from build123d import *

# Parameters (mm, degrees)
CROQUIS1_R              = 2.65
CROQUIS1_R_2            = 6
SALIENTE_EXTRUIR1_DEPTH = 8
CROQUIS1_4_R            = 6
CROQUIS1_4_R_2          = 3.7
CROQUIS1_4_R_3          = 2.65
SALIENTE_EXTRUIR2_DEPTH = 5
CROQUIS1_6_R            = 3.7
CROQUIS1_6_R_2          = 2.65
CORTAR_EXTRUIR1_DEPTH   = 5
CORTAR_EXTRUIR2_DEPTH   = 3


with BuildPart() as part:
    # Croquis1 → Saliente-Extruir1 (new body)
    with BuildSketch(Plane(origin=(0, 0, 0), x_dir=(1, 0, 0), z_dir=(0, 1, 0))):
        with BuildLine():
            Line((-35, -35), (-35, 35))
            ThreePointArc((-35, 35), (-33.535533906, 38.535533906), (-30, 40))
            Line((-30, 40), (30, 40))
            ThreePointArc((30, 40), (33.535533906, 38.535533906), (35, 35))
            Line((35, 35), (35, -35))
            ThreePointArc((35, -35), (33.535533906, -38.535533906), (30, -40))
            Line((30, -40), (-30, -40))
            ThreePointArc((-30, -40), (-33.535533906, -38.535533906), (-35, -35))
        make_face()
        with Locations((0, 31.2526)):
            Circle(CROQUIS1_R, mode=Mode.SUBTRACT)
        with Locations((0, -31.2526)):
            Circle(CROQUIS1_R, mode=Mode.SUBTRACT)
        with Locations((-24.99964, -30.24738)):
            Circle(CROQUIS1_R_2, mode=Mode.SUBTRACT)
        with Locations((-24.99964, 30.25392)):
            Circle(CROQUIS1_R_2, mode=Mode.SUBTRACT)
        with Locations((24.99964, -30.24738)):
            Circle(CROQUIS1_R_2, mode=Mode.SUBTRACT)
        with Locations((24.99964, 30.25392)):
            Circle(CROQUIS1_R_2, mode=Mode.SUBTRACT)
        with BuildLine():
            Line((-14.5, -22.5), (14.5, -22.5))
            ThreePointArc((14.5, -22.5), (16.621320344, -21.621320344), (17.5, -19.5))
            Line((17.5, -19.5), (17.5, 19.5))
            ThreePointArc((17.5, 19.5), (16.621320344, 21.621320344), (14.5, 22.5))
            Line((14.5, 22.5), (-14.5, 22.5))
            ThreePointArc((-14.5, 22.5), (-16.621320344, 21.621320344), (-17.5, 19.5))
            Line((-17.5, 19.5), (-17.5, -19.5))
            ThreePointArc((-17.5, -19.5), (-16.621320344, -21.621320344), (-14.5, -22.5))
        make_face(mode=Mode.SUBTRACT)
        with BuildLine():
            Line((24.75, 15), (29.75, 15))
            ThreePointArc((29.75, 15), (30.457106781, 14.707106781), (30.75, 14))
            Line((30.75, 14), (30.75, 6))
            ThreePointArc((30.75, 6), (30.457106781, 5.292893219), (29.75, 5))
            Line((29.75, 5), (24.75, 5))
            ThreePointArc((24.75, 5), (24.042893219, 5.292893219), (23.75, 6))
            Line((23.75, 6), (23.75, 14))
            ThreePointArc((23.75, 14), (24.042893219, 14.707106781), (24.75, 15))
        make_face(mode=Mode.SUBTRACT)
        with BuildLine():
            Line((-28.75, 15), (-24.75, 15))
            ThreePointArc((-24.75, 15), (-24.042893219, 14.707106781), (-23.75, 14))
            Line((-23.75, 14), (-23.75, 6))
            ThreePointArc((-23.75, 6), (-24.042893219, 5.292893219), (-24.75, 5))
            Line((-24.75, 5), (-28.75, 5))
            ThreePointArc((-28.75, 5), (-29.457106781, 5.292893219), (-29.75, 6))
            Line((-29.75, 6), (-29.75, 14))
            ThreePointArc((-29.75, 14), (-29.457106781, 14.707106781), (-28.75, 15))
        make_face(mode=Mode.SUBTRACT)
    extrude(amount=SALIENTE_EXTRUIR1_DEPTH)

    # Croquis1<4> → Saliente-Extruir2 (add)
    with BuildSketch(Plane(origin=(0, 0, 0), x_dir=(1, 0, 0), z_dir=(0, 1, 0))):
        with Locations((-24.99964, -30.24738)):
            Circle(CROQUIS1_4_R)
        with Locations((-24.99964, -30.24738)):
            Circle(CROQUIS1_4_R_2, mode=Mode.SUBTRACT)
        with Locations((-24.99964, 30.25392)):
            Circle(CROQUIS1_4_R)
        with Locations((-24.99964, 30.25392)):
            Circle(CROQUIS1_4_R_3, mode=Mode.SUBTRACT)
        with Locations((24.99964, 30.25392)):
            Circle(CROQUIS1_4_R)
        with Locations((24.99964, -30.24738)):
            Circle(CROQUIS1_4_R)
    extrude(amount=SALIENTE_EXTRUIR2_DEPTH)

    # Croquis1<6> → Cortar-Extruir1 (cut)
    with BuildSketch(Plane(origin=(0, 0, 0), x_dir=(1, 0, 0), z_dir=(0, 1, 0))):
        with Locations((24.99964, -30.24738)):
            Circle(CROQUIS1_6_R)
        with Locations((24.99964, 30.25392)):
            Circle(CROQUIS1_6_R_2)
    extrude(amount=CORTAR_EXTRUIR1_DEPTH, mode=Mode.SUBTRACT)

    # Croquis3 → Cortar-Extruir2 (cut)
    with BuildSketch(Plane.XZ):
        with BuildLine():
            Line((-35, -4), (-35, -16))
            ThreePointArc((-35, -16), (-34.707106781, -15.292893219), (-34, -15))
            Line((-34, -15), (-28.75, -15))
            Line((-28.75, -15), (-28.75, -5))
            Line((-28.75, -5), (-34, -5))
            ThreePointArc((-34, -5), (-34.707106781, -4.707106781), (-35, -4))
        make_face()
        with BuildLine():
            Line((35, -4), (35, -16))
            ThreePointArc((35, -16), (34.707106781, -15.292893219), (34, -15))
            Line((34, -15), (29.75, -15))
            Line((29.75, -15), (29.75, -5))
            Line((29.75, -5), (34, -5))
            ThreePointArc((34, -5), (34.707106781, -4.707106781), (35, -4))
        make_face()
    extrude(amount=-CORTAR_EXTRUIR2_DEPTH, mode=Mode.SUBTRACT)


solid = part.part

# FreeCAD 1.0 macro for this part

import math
import FreeCAD as App
import Part
import Sketcher

V = App.Vector
Q = App.Units.Quantity

doc = App.newDocument("Part")
body = doc.addObject("PartDesign::Body", "Body")

# Sketch on XZ plane
sketch1 = body.newObject("Sketcher::SketchObject", "Sketch")
sketch1.AttachmentSupport = (doc.getObject("XZ_Plane"), [""])
sketch1.MapMode = "FlatFace"
sketch1.addGeometry(Part.LineSegment(V(-35, -35, 0), V(-35, 35, 0)), False)
sketch1.addGeometry(Part.ArcOfCircle(Part.Circle(V(-30, 35, 0), V(0, 0, 1), 5), math.radians(90), math.radians(180)), False)
sketch1.addGeometry(Part.LineSegment(V(-30, 40, 0), V(30, 40, 0)), False)
sketch1.addGeometry(Part.ArcOfCircle(Part.Circle(V(30, 35, 0), V(0, 0, 1), 5), math.radians(0), math.radians(90)), False)
sketch1.addGeometry(Part.LineSegment(V(35, 35, 0), V(35, -35, 0)), False)
sketch1.addGeometry(Part.ArcOfCircle(Part.Circle(V(30, -35, 0), V(0, 0, 1), 5), math.radians(-90), math.radians(0)), False)
sketch1.addGeometry(Part.LineSegment(V(30, -40, 0), V(-30, -40, 0)), False)
sketch1.addGeometry(Part.ArcOfCircle(Part.Circle(V(-30, -35, 0), V(0, 0, 1), 5), math.radians(180), math.radians(270)), False)
sketch1.addGeometry(Part.Circle(V(25, 30.2, 0), V(0, 0, 1), 6), False)
sketch1.addGeometry(Part.Circle(V(0, 31.3, 0), V(0, 0, 1), 2.6), False)
sketch1.addGeometry(Part.Circle(V(-25, 30.2, 0), V(0, 0, 1), 6), False)
sketch1.addGeometry(Part.ArcOfCircle(Part.Circle(V(-14.5, 19.5, 0), V(0, 0, 1), 3), math.radians(90), math.radians(180)), False)
sketch1.addGeometry(Part.LineSegment(V(-17.5, 19.5, 0), V(-17.5, -19.5, 0)), False)
sketch1.addGeometry(Part.ArcOfCircle(Part.Circle(V(-14.5, -19.5, 0), V(0, 0, 1), 3), math.radians(180), math.radians(270)), False)
sketch1.addGeometry(Part.LineSegment(V(-14.5, -22.5, 0), V(14.5, -22.5, 0)), False)
sketch1.addGeometry(Part.ArcOfCircle(Part.Circle(V(14.5, -19.5, 0), V(0, 0, 1), 3), math.radians(-90), math.radians(0)), False)
sketch1.addGeometry(Part.LineSegment(V(17.5, -19.5, 0), V(17.5, 19.5, 0)), False)
sketch1.addGeometry(Part.ArcOfCircle(Part.Circle(V(14.5, 19.5, 0), V(0, 0, 1), 3), math.radians(0), math.radians(90)), False)
sketch1.addGeometry(Part.LineSegment(V(14.5, 22.5, 0), V(-14.5, 22.5, 0)), False)
sketch1.addGeometry(Part.LineSegment(V(24.8, -15, 0), V(29.8, -15, 0)), False)
sketch1.addGeometry(Part.ArcOfCircle(Part.Circle(V(29.7, -14, 0), V(0, 0, 1), 1), math.radians(-90), math.radians(0)), False)
sketch1.addGeometry(Part.LineSegment(V(30.8, -14, 0), V(30.8, -6, 0)), False)
sketch1.addGeometry(Part.ArcOfCircle(Part.Circle(V(29.7, -6, 0), V(0, 0, 1), 1), math.radians(0), math.radians(90)), False)
sketch1.addGeometry(Part.LineSegment(V(29.8, -5, 0), V(24.8, -5, 0)), False)
sketch1.addGeometry(Part.ArcOfCircle(Part.Circle(V(24.8, -6, 0), V(0, 0, 1), 1), math.radians(90), math.radians(180)), False)
sketch1.addGeometry(Part.LineSegment(V(23.8, -6, 0), V(23.8, -14, 0)), False)
sketch1.addGeometry(Part.ArcOfCircle(Part.Circle(V(24.8, -14, 0), V(0, 0, 1), 1), math.radians(-180), math.radians(-90)), False)
sketch1.addGeometry(Part.Circle(V(25, -30.3, 0), V(0, 0, 1), 6), False)
sketch1.addGeometry(Part.LineSegment(V(-28.8, -15, 0), V(-24.8, -15, 0)), False)
sketch1.addGeometry(Part.ArcOfCircle(Part.Circle(V(-24.8, -14, 0), V(0, 0, 1), 1), math.radians(-90), math.radians(0)), False)
sketch1.addGeometry(Part.LineSegment(V(-23.8, -14, 0), V(-23.8, -6, 0)), False)
sketch1.addGeometry(Part.ArcOfCircle(Part.Circle(V(-24.8, -6, 0), V(0, 0, 1), 1), math.radians(0), math.radians(90)), False)
sketch1.addGeometry(Part.LineSegment(V(-24.8, -5, 0), V(-28.8, -5, 0)), False)
sketch1.addGeometry(Part.ArcOfCircle(Part.Circle(V(-28.7, -6, 0), V(0, 0, 1), 1), math.radians(90), math.radians(180)), False)
sketch1.addGeometry(Part.LineSegment(V(-29.8, -6, 0), V(-29.8, -14, 0)), False)
sketch1.addGeometry(Part.ArcOfCircle(Part.Circle(V(-28.7, -14, 0), V(0, 0, 1), 1), math.radians(-180), math.radians(-90)), False)
sketch1.addGeometry(Part.Circle(V(0, -31.3, 0), V(0, 0, 1), 2.6), False)
sketch1.addGeometry(Part.Circle(V(-25, -30.3, 0), V(0, 0, 1), 6), False)
sketch1.addConstraint(Sketcher.Constraint("Tangent", 0, 2, 1, 2))
sketch1.addConstraint(Sketcher.Constraint("Tangent", 1, 1, 2, 1))
sketch1.addConstraint(Sketcher.Constraint("Tangent", 2, 2, 3, 2))
sketch1.addConstraint(Sketcher.Constraint("Tangent", 3, 1, 4, 1))
sketch1.addConstraint(Sketcher.Constraint("Tangent", 4, 2, 5, 2))
sketch1.addConstraint(Sketcher.Constraint("Tangent", 5, 1, 6, 1))
sketch1.addConstraint(Sketcher.Constraint("Tangent", 6, 2, 7, 2))
sketch1.addConstraint(Sketcher.Constraint("Tangent", 7, 1, 0, 1))
sketch1.addConstraint(Sketcher.Constraint("Tangent", 11, 2, 12, 1))
sketch1.addConstraint(Sketcher.Constraint("Tangent", 12, 2, 13, 1))
sketch1.addConstraint(Sketcher.Constraint("Tangent", 13, 2, 14, 1))
sketch1.addConstraint(Sketcher.Constraint("Tangent", 14, 2, 15, 1))
sketch1.addConstraint(Sketcher.Constraint("Tangent", 15, 2, 16, 1))
sketch1.addConstraint(Sketcher.Constraint("Tangent", 16, 2, 17, 1))
sketch1.addConstraint(Sketcher.Constraint("Tangent", 17, 2, 18, 1))
sketch1.addConstraint(Sketcher.Constraint("Tangent", 18, 2, 11, 1))
sketch1.addConstraint(Sketcher.Constraint("Tangent", 19, 2, 20, 1))
sketch1.addConstraint(Sketcher.Constraint("Tangent", 20, 2, 21, 1))
sketch1.addConstraint(Sketcher.Constraint("Tangent", 21, 2, 22, 1))
sketch1.addConstraint(Sketcher.Constraint("Tangent", 22, 2, 23, 1))
sketch1.addConstraint(Sketcher.Constraint("Tangent", 23, 2, 24, 1))
sketch1.addConstraint(Sketcher.Constraint("Tangent", 24, 2, 25, 1))
sketch1.addConstraint(Sketcher.Constraint("Tangent", 25, 2, 26, 1))
sketch1.addConstraint(Sketcher.Constraint("Tangent", 26, 2, 19, 1))
sketch1.addConstraint(Sketcher.Constraint("Tangent", 28, 2, 29, 1))
sketch1.addConstraint(Sketcher.Constraint("Tangent", 29, 2, 30, 1))
sketch1.addConstraint(Sketcher.Constraint("Tangent", 30, 2, 31, 1))
sketch1.addConstraint(Sketcher.Constraint("Tangent", 31, 2, 32, 1))
sketch1.addConstraint(Sketcher.Constraint("Tangent", 32, 2, 33, 1))
sketch1.addConstraint(Sketcher.Constraint("Tangent", 33, 2, 34, 1))
sketch1.addConstraint(Sketcher.Constraint("Tangent", 34, 2, 35, 1))
sketch1.addConstraint(Sketcher.Constraint("Tangent", 35, 2, 28, 1))
sketch1.addConstraint(Sketcher.Constraint("Vertical", 0))
sketch1.addConstraint(Sketcher.Constraint("Horizontal", 2))
sketch1.addConstraint(Sketcher.Constraint("Vertical", 4))
sketch1.addConstraint(Sketcher.Constraint("Horizontal", 6))
sketch1.addConstraint(Sketcher.Constraint("Vertical", 12))
sketch1.addConstraint(Sketcher.Constraint("Horizontal", 14))
sketch1.addConstraint(Sketcher.Constraint("Vertical", 16))
sketch1.addConstraint(Sketcher.Constraint("Horizontal", 18))
sketch1.addConstraint(Sketcher.Constraint("Horizontal", 19))
sketch1.addConstraint(Sketcher.Constraint("Vertical", 21))
sketch1.addConstraint(Sketcher.Constraint("Horizontal", 23))
sketch1.addConstraint(Sketcher.Constraint("Vertical", 25))
sketch1.addConstraint(Sketcher.Constraint("Horizontal", 28))
sketch1.addConstraint(Sketcher.Constraint("Vertical", 30))
sketch1.addConstraint(Sketcher.Constraint("Horizontal", 32))
sketch1.addConstraint(Sketcher.Constraint("Vertical", 34))
sketch1.addConstraint(Sketcher.Constraint("Equal", 1, 3))
sketch1.addConstraint(Sketcher.Constraint("Equal", 3, 5))
sketch1.addConstraint(Sketcher.Constraint("Equal", 5, 7))
sketch1.addConstraint(Sketcher.Constraint("Equal", 8, 10))
sketch1.addConstraint(Sketcher.Constraint("Equal", 11, 13))
sketch1.addConstraint(Sketcher.Constraint("Equal", 13, 15))
sketch1.addConstraint(Sketcher.Constraint("Equal", 15, 17))
sketch1.addConstraint(Sketcher.Constraint("Equal", 20, 22))
sketch1.addConstraint(Sketcher.Constraint("Equal", 22, 24))
sketch1.addConstraint(Sketcher.Constraint("Equal", 24, 26))
sketch1.addConstraint(Sketcher.Constraint("Equal", 10, 27))
sketch1.addConstraint(Sketcher.Constraint("Equal", 26, 29))
sketch1.addConstraint(Sketcher.Constraint("Equal", 29, 31))
sketch1.addConstraint(Sketcher.Constraint("Equal", 31, 33))
sketch1.addConstraint(Sketcher.Constraint("Equal", 33, 35))
sketch1.addConstraint(Sketcher.Constraint("Equal", 9, 36))
sketch1.addConstraint(Sketcher.Constraint("Equal", 27, 37))
sketch1.addConstraint(Sketcher.Constraint("Symmetric", 1, 3, 5, 3, -1, 1))
sketch1.addConstraint(Sketcher.Constraint("Symmetric", 11, 3, 15, 3, -1, 1))
sketch1.addConstraint(Sketcher.Constraint("Symmetric", 9, 3, 36, 3, -1, 1))
sketch1.addConstraint(Sketcher.Constraint("Symmetric", 8, 3, 10, 3, -2))
sketch1.addConstraint(Sketcher.Constraint("Symmetric", 26, 3, 29, 3, -2))
sketch1.addConstraint(Sketcher.Constraint("Symmetric", 27, 3, 37, 3, -2))
sketch1.addConstraint(Sketcher.Constraint("PointOnObject", 9, 3, -2))
sketch1.addConstraint(Sketcher.Constraint("Horizontal", 24, 3, 31, 3))
sketch1.addConstraint(Sketcher.Constraint("Vertical", 8, 3, 27, 3))
sketch1.addConstraint(Sketcher.Constraint("Diameter", 8, Q("12 mm")))
sketch1.addConstraint(Sketcher.Constraint("Radius", 1, Q("5 mm")))
sketch1.addConstraint(Sketcher.Constraint("Radius", 11, Q("3 mm")))
sketch1.addConstraint(Sketcher.Constraint("Radius", 20, Q("1 mm")))
sketch1.addConstraint(Sketcher.Constraint("Diameter", 9, Q("5.3 mm")))
sketch1.addConstraint(Sketcher.Constraint("DistanceX", 2, 1, 2, 2, Q("60 mm")))
sketch1.addConstraint(Sketcher.Constraint("DistanceX", 14, 1, 14, 2, Q("29 mm")))
sketch1.addConstraint(Sketcher.Constraint("DistanceX", 19, 1, 19, 2, Q("5 mm")))
sketch1.addConstraint(Sketcher.Constraint("DistanceX", 28, 1, 28, 2, Q("4 mm")))
sketch1.addConstraint(Sketcher.Constraint("DistanceY", 0, 1, 0, 2, Q("70 mm")))
sketch1.addConstraint(Sketcher.Constraint("DistanceY", 12, 2, 12, 1, Q("39 mm")))
sketch1.addConstraint(Sketcher.Constraint("DistanceY", 21, 1, 21, 2, Q("8 mm")))
sketch1.addConstraint(Sketcher.Constraint("DistanceY", 20, 3, -1, 1, Q("14 mm")))
sketch1.addConstraint(Sketcher.Constraint("DistanceX", -1, 1, 20, 3, Q("29.75 mm")))
sketch1.addConstraint(Sketcher.Constraint("DistanceY", -1, 1, 9, 3, Q("31.2526 mm")))
sketch1.addConstraint(Sketcher.Constraint("DistanceX", -1, 1, 8, 3, Q("24.99964 mm")))
sketch1.addConstraint(Sketcher.Constraint("DistanceY", -1, 1, 8, 3, Q("30.24738 mm")))
sketch1.addConstraint(Sketcher.Constraint("DistanceY", 27, 3, -1, 1, Q("30.25392 mm")))
pad1 = body.newObject("PartDesign::Pad", "Pad")
pad1.Profile = sketch1
pad1.Length = 8
pad1.Reversed = True

# Sketch on XZ plane
sketch2 = body.newObject("Sketcher::SketchObject", "Sketch001")
sketch2.AttachmentSupport = (doc.getObject("XZ_Plane"), [""])
sketch2.MapMode = "FlatFace"
sketch2.addGeometry(Part.Circle(V(-25, 30.2, 0), V(0, 0, 1), 6), False)
sketch2.addGeometry(Part.Circle(V(-25, 30.2, 0), V(0, 0, 1), 3.7), False)
sketch2.addGeometry(Part.Circle(V(-25, -30.3, 0), V(0, 0, 1), 6), False)
sketch2.addGeometry(Part.Circle(V(-25, -30.3, 0), V(0, 0, 1), 2.6), False)
sketch2.addGeometry(Part.Circle(V(25, -30.3, 0), V(0, 0, 1), 6), False)
sketch2.addGeometry(Part.Circle(V(25, 30.2, 0), V(0, 0, 1), 6), False)
sketch2.addConstraint(Sketcher.Constraint("Coincident", 1, 3, 0, 3))
sketch2.addConstraint(Sketcher.Constraint("Coincident", 3, 3, 2, 3))
sketch2.addConstraint(Sketcher.Constraint("Equal", 0, 2))
sketch2.addConstraint(Sketcher.Constraint("Equal", 2, 4))
sketch2.addConstraint(Sketcher.Constraint("Equal", 4, 5))
sketch2.addConstraint(Sketcher.Constraint("Symmetric", 2, 3, 4, 3, -2))
sketch2.addConstraint(Sketcher.Constraint("Symmetric", 0, 3, 5, 3, -2))
sketch2.addConstraint(Sketcher.Constraint("Vertical", 1, 3, 2, 3))
sketch2.addConstraint(Sketcher.Constraint("Diameter", 0, Q("12 mm")))
sketch2.addConstraint(Sketcher.Constraint("Diameter", 1, Q("7.4 mm")))
sketch2.addConstraint(Sketcher.Constraint("Diameter", 3, Q("5.3 mm")))
sketch2.addConstraint(Sketcher.Constraint("DistanceY", 2, 3, 0, 3, Q("60.5013 mm")))
sketch2.addConstraint(Sketcher.Constraint("DistanceX", 0, 3, -1, 1, Q("24.99964 mm")))
sketch2.addConstraint(Sketcher.Constraint("DistanceY", -1, 1, 0, 3, Q("30.24738 mm")))
pad2 = body.newObject("PartDesign::Pad", "Pad001")
pad2.Profile = sketch2
pad2.Length = 5
pad2.Reversed = True

# Sketch on XZ plane
sketch3 = body.newObject("Sketcher::SketchObject", "Sketch002")
sketch3.AttachmentSupport = (doc.getObject("XZ_Plane"), [""])
sketch3.MapMode = "FlatFace"
sketch3.addGeometry(Part.Circle(V(25, 30.2, 0), V(0, 0, 1), 3.7), False)
sketch3.addGeometry(Part.Circle(V(25, -30.3, 0), V(0, 0, 1), 2.6), False)
sketch3.addConstraint(Sketcher.Constraint("Vertical", 0, 3, 1, 3))
sketch3.addConstraint(Sketcher.Constraint("Diameter", 0, Q("7.4 mm")))
sketch3.addConstraint(Sketcher.Constraint("Diameter", 1, Q("5.3 mm")))
sketch3.addConstraint(Sketcher.Constraint("DistanceY", 1, 3, 0, 3, Q("60.5013 mm")))
sketch3.addConstraint(Sketcher.Constraint("DistanceX", -1, 1, 0, 3, Q("24.99964 mm")))
sketch3.addConstraint(Sketcher.Constraint("DistanceY", -1, 1, 0, 3, Q("30.24738 mm")))
pocket1 = body.newObject("PartDesign::Pocket", "Pocket")
pocket1.Profile = sketch3
pocket1.Length = 5

# Sketch on XZ plane
sketch4 = body.newObject("Sketcher::SketchObject", "Sketch003")
sketch4.AttachmentSupport = (doc.getObject("XZ_Plane"), [""])
sketch4.MapMode = "FlatFace"
sketch4.addGeometry(Part.LineSegment(V(-35, -4, 0), V(-35, -16, 0)), False)
sketch4.addGeometry(Part.ArcOfCircle(Part.Circle(V(-34, -16, 0), V(0, 0, 1), 1), math.radians(90), math.radians(180)), False)
sketch4.addGeometry(Part.LineSegment(V(-34, -15, 0), V(-28.8, -15, 0)), False)
sketch4.addGeometry(Part.LineSegment(V(-28.8, -15, 0), V(-28.8, -5, 0)), False)
sketch4.addGeometry(Part.LineSegment(V(-28.8, -5, 0), V(-34, -5, 0)), False)
sketch4.addGeometry(Part.ArcOfCircle(Part.Circle(V(-34, -4, 0), V(0, 0, 1), 1), math.radians(-180), math.radians(-90)), False)
sketch4.addGeometry(Part.LineSegment(V(35, -16, 0), V(35, -4, 0)), False)
sketch4.addGeometry(Part.ArcOfCircle(Part.Circle(V(34, -4, 0), V(0, 0, 1), 1), math.radians(-90), math.radians(0)), False)
sketch4.addGeometry(Part.LineSegment(V(34, -5, 0), V(29.8, -5, 0)), False)
sketch4.addGeometry(Part.LineSegment(V(29.8, -5, 0), V(29.8, -15, 0)), False)
sketch4.addGeometry(Part.LineSegment(V(29.8, -15, 0), V(34, -15, 0)), False)
sketch4.addGeometry(Part.ArcOfCircle(Part.Circle(V(34, -16, 0), V(0, 0, 1), 1), math.radians(0), math.radians(90)), False)
sketch4.addConstraint(Sketcher.Constraint("Tangent", 0, 2, 1, 2))
sketch4.addConstraint(Sketcher.Constraint("Tangent", 1, 1, 2, 1))
sketch4.addConstraint(Sketcher.Constraint("Coincident", 2, 2, 3, 1))
sketch4.addConstraint(Sketcher.Constraint("Coincident", 3, 2, 4, 1))
sketch4.addConstraint(Sketcher.Constraint("Tangent", 4, 2, 5, 2))
sketch4.addConstraint(Sketcher.Constraint("Tangent", 5, 1, 0, 1))
sketch4.addConstraint(Sketcher.Constraint("Tangent", 6, 2, 7, 2))
sketch4.addConstraint(Sketcher.Constraint("Tangent", 7, 1, 8, 1))
sketch4.addConstraint(Sketcher.Constraint("Coincident", 8, 2, 9, 1))
sketch4.addConstraint(Sketcher.Constraint("Coincident", 9, 2, 10, 1))
sketch4.addConstraint(Sketcher.Constraint("Tangent", 10, 2, 11, 2))
sketch4.addConstraint(Sketcher.Constraint("Tangent", 11, 1, 6, 1))
sketch4.addConstraint(Sketcher.Constraint("Vertical", 0))
sketch4.addConstraint(Sketcher.Constraint("Horizontal", 2))
sketch4.addConstraint(Sketcher.Constraint("Vertical", 3))
sketch4.addConstraint(Sketcher.Constraint("Horizontal", 4))
sketch4.addConstraint(Sketcher.Constraint("Vertical", 6))
sketch4.addConstraint(Sketcher.Constraint("Horizontal", 8))
sketch4.addConstraint(Sketcher.Constraint("Vertical", 9))
sketch4.addConstraint(Sketcher.Constraint("Horizontal", 10))
sketch4.addConstraint(Sketcher.Constraint("Equal", 1, 5))
sketch4.addConstraint(Sketcher.Constraint("Equal", 5, 7))
sketch4.addConstraint(Sketcher.Constraint("Equal", 7, 11))
sketch4.addConstraint(Sketcher.Constraint("Symmetric", 5, 3, 7, 3, -2))
sketch4.addConstraint(Sketcher.Constraint("Horizontal", 1, 3, 11, 3))
sketch4.addConstraint(Sketcher.Constraint("Radius", 1, Q("1 mm")))
sketch4.addConstraint(Sketcher.Constraint("DistanceY", 0, 2, 0, 1, Q("12 mm")))
sketch4.addConstraint(Sketcher.Constraint("DistanceX", 1, 3, -1, 1, Q("34 mm")))
sketch4.addConstraint(Sketcher.Constraint("DistanceY", 1, 3, -1, 1, Q("16 mm")))
sketch4.addConstraint(Sketcher.Constraint("DistanceX", 2, 1, 2, 2, Q("5.25 mm")))
sketch4.addConstraint(Sketcher.Constraint("DistanceX", 8, 2, 8, 1, Q("4.25 mm")))
pocket2 = body.newObject("PartDesign::Pocket", "Pocket001")
pocket2.Profile = sketch4
pocket2.Length = 3

doc.recompute()
